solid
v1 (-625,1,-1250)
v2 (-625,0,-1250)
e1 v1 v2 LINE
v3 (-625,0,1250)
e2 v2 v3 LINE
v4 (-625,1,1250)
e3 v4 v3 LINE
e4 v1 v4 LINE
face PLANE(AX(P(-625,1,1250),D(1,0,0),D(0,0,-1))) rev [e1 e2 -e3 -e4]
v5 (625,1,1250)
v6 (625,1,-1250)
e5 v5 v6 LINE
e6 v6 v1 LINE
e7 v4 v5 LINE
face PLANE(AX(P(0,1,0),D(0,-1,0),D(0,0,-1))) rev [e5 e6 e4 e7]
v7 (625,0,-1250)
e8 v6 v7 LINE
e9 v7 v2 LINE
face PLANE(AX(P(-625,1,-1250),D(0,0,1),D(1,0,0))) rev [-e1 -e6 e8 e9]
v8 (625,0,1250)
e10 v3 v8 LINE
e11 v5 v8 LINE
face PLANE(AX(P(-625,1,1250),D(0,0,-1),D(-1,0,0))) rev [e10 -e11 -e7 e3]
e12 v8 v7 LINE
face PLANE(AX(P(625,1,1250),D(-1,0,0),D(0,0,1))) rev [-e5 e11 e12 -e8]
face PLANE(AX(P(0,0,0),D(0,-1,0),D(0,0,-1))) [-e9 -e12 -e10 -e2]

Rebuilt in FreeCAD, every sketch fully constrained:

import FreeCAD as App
import Part
import Sketcher
from FreeCAD import Vector
Q = App.Units.Quantity

doc = App.newDocument("Part")
body = doc.addObject("PartDesign::Body", "Body")

sketch1 = body.newObject("Sketcher::SketchObject", "Sketch")
sketch1.AttachmentSupport = (doc.getObject("XZ_Plane"), [""])
sketch1.MapMode = "FlatFace"
sketch1.addGeometry([
    Part.LineSegment(Vector(-625, -1250, 0), Vector(-625, 1250, 0)),
    Part.LineSegment(Vector(-625, 1250, 0), Vector(625, 1250, 0)),
    Part.LineSegment(Vector(625, 1250, 0), Vector(625, -1250, 0)),
    Part.LineSegment(Vector(625, -1250, 0), Vector(-625, -1250, 0)),
], False)
sketch1.addConstraint([
    Sketcher.Constraint("Coincident", 0, 2, 1, 1),
    Sketcher.Constraint("Coincident", 1, 2, 2, 1),
    Sketcher.Constraint("Coincident", 2, 2, 3, 1),
    Sketcher.Constraint("Coincident", 3, 2, 0, 1),
    Sketcher.Constraint("Vertical", 0),
    Sketcher.Constraint("Horizontal", 1),
    Sketcher.Constraint("Vertical", 2),
    Sketcher.Constraint("Horizontal", 3),
    Sketcher.Constraint("Symmetric", 0, 2, 2, 2, -1, 1),
    Sketcher.Constraint("DistanceX", 1, 1, 1, 2, Q("1250 mm")),
    Sketcher.Constraint("DistanceY", 0, 1, 0, 2, Q("2500 mm")),
])
pad1 = body.newObject("PartDesign::Pad", "Pad")
pad1.Profile = sketch1
pad1.Length = 1
pad1.Reversed = True

doc.recompute()
